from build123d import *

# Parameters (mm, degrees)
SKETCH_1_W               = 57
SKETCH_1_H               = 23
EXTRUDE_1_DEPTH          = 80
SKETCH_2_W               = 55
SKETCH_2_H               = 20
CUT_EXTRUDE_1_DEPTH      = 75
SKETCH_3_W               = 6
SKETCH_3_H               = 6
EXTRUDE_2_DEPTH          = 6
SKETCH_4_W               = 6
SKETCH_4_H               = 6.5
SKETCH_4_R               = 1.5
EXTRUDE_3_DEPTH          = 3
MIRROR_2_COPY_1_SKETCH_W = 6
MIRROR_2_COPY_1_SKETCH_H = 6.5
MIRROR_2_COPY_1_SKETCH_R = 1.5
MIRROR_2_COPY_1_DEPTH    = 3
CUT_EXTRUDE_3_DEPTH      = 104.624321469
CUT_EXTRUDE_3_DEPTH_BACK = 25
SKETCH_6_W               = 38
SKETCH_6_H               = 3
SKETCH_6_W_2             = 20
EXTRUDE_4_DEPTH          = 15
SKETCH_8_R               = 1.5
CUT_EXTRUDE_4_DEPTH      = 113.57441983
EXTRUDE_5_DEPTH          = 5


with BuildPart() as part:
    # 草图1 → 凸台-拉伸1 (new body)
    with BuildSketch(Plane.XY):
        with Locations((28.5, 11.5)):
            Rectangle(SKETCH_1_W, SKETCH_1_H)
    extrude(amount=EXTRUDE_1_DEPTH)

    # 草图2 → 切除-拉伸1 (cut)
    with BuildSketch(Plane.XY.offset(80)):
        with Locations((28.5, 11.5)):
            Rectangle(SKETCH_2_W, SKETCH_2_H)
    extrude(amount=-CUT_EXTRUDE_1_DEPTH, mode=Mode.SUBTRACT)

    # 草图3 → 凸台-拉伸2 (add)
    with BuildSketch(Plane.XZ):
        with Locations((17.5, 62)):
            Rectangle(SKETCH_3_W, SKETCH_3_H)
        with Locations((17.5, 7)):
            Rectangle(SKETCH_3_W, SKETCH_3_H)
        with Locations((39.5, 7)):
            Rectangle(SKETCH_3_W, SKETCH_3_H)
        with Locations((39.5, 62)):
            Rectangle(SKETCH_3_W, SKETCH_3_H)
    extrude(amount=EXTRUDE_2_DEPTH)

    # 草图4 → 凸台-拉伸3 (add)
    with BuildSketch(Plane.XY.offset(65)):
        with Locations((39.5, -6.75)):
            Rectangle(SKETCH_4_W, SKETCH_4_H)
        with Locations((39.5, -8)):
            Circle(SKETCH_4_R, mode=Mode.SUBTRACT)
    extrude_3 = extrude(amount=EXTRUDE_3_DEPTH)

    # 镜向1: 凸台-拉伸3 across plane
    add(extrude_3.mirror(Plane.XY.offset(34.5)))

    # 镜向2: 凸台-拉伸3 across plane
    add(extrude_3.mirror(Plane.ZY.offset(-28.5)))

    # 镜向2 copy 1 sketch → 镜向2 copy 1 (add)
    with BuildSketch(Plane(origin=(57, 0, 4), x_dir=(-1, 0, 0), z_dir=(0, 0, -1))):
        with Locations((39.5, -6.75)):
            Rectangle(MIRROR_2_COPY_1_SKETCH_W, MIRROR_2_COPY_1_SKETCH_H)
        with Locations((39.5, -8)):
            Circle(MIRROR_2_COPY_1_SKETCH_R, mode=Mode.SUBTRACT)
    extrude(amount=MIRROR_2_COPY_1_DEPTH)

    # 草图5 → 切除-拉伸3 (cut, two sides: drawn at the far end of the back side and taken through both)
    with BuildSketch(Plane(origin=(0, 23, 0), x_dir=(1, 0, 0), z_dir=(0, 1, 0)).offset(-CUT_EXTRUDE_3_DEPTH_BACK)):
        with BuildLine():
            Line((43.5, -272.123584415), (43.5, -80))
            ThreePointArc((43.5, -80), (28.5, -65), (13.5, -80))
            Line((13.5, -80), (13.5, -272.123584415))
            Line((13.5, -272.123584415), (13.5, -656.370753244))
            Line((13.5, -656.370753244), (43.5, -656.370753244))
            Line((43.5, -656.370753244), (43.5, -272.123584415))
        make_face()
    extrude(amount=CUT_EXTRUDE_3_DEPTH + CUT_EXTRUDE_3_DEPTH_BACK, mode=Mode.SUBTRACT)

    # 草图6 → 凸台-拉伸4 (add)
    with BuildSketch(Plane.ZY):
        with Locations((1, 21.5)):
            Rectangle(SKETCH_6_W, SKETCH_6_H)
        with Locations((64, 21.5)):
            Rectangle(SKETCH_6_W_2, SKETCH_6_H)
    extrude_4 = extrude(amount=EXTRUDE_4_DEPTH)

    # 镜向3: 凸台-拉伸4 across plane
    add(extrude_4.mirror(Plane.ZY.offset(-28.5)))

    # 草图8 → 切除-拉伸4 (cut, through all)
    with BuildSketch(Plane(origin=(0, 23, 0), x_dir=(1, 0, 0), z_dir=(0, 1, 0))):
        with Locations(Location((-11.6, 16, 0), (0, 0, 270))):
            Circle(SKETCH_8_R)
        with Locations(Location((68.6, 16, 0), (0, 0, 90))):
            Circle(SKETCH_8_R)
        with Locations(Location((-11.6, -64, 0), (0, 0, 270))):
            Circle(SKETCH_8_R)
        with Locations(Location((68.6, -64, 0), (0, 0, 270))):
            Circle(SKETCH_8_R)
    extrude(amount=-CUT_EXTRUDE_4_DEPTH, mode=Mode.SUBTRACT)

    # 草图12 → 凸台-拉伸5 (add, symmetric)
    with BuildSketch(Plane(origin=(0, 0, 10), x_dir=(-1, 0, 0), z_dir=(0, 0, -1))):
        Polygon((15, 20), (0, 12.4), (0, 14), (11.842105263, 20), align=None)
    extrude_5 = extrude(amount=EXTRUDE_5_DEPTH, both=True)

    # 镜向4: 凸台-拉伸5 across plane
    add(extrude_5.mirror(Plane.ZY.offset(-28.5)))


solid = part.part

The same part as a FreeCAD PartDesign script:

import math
import FreeCAD as App
import Part
import Sketcher

doc = App.newDocument("Part")
params = doc.addObject("Spreadsheet::Sheet", "Params")
for row, (alias, value) in enumerate([
    ("sketch1_width", "57 mm"),
    ("sketch1_height", "23 mm"),
    ("pad1_length", "80 mm"),
    ("sketch2_width", "55 mm"),
    ("sketch2_height", "20 mm"),
    ("pocket1_length", "75 mm"),
    ("sketch3_width", "6 mm"),
    ("pad2_length", "6 mm"),
    ("sketch4_diameter", "3 mm"),
    ("sketch4_width", "6 mm"),
    ("sketch4_height", "6.5 mm"),
    ("pad3_length", "3 mm"),
    ("sketch5_diameter", "3 mm"),
    ("sketch5_width", "6 mm"),
    ("sketch5_height", "6.5 mm"),
    ("pad4_length", "3 mm"),
    ("sketch6_radius", "15 mm"),
    ("pocket2_length", "104.624321 mm"),
    ("pocket2_length2", "25 mm"),
    ("sketch7_width", "3 mm"),
    ("sketch7_height", "38 mm"),
    ("sketch7_height2", "20 mm"),
    ("pad5_length", "15 mm"),
    ("sketch8_diameter", "3 mm"),
    ("sketch9_height", "1.6 mm"),
    ("pad6_length", "10 mm"),
], start=1):
    params.set(f"A{row}", alias)
    params.set(f"B{row}", "=" + value)
    params.setAlias(f"B{row}", alias)

body = doc.addObject("PartDesign::Body", "Body")

sketch1 = body.newObject("Sketcher::SketchObject", "Sketch")
sketch1.AttachmentSupport = (doc.getObject("XY_Plane"), [""])
sketch1.MapMode = "FlatFace"
sketch1.addGeometry([
    Part.LineSegment(App.Vector(0, 23, 0), App.Vector(0, 0, 0)),
    Part.LineSegment(App.Vector(0, 0, 0), App.Vector(57, 0, 0)),
    Part.LineSegment(App.Vector(57, 0, 0), App.Vector(57, 23, 0)),
    Part.LineSegment(App.Vector(57, 23, 0), App.Vector(0, 23, 0)),
], False)
sketch1.addConstraint([
    Sketcher.Constraint("Coincident", 0, 2, 1, 1),
    Sketcher.Constraint("Coincident", 1, 2, 2, 1),
    Sketcher.Constraint("Coincident", 2, 2, 3, 1),
    Sketcher.Constraint("Coincident", 3, 2, 0, 1),
    Sketcher.Constraint("Vertical", 0),
    Sketcher.Constraint("Horizontal", 1),
    Sketcher.Constraint("Vertical", 2),
    Sketcher.Constraint("Horizontal", 3),
    Sketcher.Constraint("Coincident", 0, 2, -1, 1),
    Sketcher.Constraint("DistanceX", 1, 1, 1, 2, 57.0),
    Sketcher.Constraint("DistanceY", 0, 2, 0, 1, 23.0),
])
sketch1.setExpression("Constraints[9]", "Params.sketch1_width")
sketch1.setExpression("Constraints[10]", "Params.sketch1_height")
pad1 = body.newObject("PartDesign::Pad", "Pad")
pad1.Profile = sketch1
pad1.setExpression("Length", "Params.pad1_length")

sketch2 = body.newObject("Sketcher::SketchObject", "Sketch001")
sketch2.AttachmentSupport = (doc.getObject("XY_Plane"), [""])
sketch2.MapMode = "FlatFace"
sketch2.AttachmentOffset = App.Placement(App.Vector(0, 0, 80), App.Rotation())
sketch2.addGeometry([
    Part.LineSegment(App.Vector(1, 22, 0), App.Vector(1, 2, 0)),
    Part.LineSegment(App.Vector(1, 2, 0), App.Vector(56, 2, 0)),
    Part.LineSegment(App.Vector(56, 2, 0), App.Vector(56, 22, 0)),
    Part.LineSegment(App.Vector(56, 22, 0), App.Vector(1, 22, 0)),
], False)
sketch2.addConstraint([
    Sketcher.Constraint("Coincident", 0, 2, 1, 1),
    Sketcher.Constraint("Coincident", 1, 2, 2, 1),
    Sketcher.Constraint("Coincident", 2, 2, 3, 1),
    Sketcher.Constraint("Coincident", 3, 2, 0, 1),
    Sketcher.Constraint("Vertical", 0),
    Sketcher.Constraint("Horizontal", 1),
    Sketcher.Constraint("Vertical", 2),
    Sketcher.Constraint("Horizontal", 3),
    Sketcher.Constraint("DistanceX", 1, 1, 1, 2, 55.0),
    Sketcher.Constraint("DistanceY", 0, 2, 0, 1, 20.0),
    Sketcher.Constraint("DistanceX", -1, 1, 0, 2, 1.0),
    Sketcher.Constraint("DistanceY", -1, 1, 0, 2, 1.5),
])
sketch2.setExpression("Constraints[8]", "Params.sketch2_width")
sketch2.setExpression("Constraints[9]", "Params.sketch2_height")
pocket1 = body.newObject("PartDesign::Pocket", "Pocket")
pocket1.Profile = sketch2
pocket1.setExpression("Length", "Params.pocket1_length")

sketch3 = body.newObject("Sketcher::SketchObject", "Sketch002")
sketch3.AttachmentSupport = (doc.getObject("XZ_Plane"), [""])
sketch3.MapMode = "FlatFace"
sketch3.addGeometry([
    Part.LineSegment(App.Vector(14, 65, 0), App.Vector(14, 59, 0)),
    Part.LineSegment(App.Vector(14, 59, 0), App.Vector(20, 59, 0)),
    Part.LineSegment(App.Vector(20, 59, 0), App.Vector(20, 65, 0)),
    Part.LineSegment(App.Vector(20, 65, 0), App.Vector(14, 65, 0)),
    Part.LineSegment(App.Vector(14, 10, 0), App.Vector(14, 4, 0)),
    Part.LineSegment(App.Vector(14, 4, 0), App.Vector(20, 4, 0)),
    Part.LineSegment(App.Vector(20, 4, 0), App.Vector(20, 10, 0)),
    Part.LineSegment(App.Vector(20, 10, 0), App.Vector(14, 10, 0)),
    Part.LineSegment(App.Vector(36, 10, 0), App.Vector(36, 4, 0)),
    Part.LineSegment(App.Vector(36, 4, 0), App.Vector(42, 4, 0)),
    Part.LineSegment(App.Vector(42, 4, 0), App.Vector(42, 10, 0)),
    Part.LineSegment(App.Vector(42, 10, 0), App.Vector(36, 10, 0)),
    Part.LineSegment(App.Vector(36, 65, 0), App.Vector(36, 59, 0)),
    Part.LineSegment(App.Vector(36, 59, 0), App.Vector(42, 59, 0)),
    Part.LineSegment(App.Vector(42, 59, 0), App.Vector(42, 65, 0)),
    Part.LineSegment(App.Vector(42, 65, 0), App.Vector(36, 65, 0)),
], False)
sketch3.addConstraint([
    Sketcher.Constraint("Coincident", 0, 2, 1, 1),
    Sketcher.Constraint("Coincident", 1, 2, 2, 1),
    Sketcher.Constraint("Coincident", 2, 2, 3, 1),
    Sketcher.Constraint("Coincident", 3, 2, 0, 1),
    Sketcher.Constraint("Coincident", 4, 2, 5, 1),
    Sketcher.Constraint("Coincident", 5, 2, 6, 1),
    Sketcher.Constraint("Coincident", 6, 2, 7, 1),
    Sketcher.Constraint("Coincident", 7, 2, 4, 1),
    Sketcher.Constraint("Coincident", 8, 2, 9, 1),
    Sketcher.Constraint("Coincident", 9, 2, 10, 1),
    Sketcher.Constraint("Coincident", 10, 2, 11, 1),
    Sketcher.Constraint("Coincident", 11, 2, 8, 1),
    Sketcher.Constraint("Coincident", 12, 2, 13, 1),
    Sketcher.Constraint("Coincident", 13, 2, 14, 1),
    Sketcher.Constraint("Coincident", 14, 2, 15, 1),
    Sketcher.Constraint("Coincident", 15, 2, 12, 1),
    Sketcher.Constraint("Vertical", 0),
    Sketcher.Constraint("Horizontal", 1),
    Sketcher.Constraint("Vertical", 2),
    Sketcher.Constraint("Horizontal", 3),
    Sketcher.Constraint("Vertical", 4),
    Sketcher.Constraint("Horizontal", 5),
    Sketcher.Constraint("Vertical", 6),
    Sketcher.Constraint("Horizontal", 7),
    Sketcher.Constraint("Vertical", 8),
    Sketcher.Constraint("Horizontal", 9),
    Sketcher.Constraint("Vertical", 10),
    Sketcher.Constraint("Horizontal", 11),
    Sketcher.Constraint("Vertical", 12),
    Sketcher.Constraint("Horizontal", 13),
    Sketcher.Constraint("Vertical", 14),
    Sketcher.Constraint("Horizontal", 15),
    Sketcher.Constraint("Horizontal", 5, 2, 8, 2),
    Sketcher.Constraint("Horizontal", 7, 2, 10, 2),
    Sketcher.Constraint("Horizontal", 1, 2, 12, 2),
    Sketcher.Constraint("Horizontal", 3, 2, 14, 2),
    Sketcher.Constraint("Vertical", 3, 2, 4, 2),
    Sketcher.Constraint("Vertical", 2, 2, 5, 2),
    Sketcher.Constraint("Vertical", 11, 2, 12, 2),
    Sketcher.Constraint("Vertical", 10, 2, 13, 2),
    Sketcher.Constraint("Equal", 7, 9),
    Sketcher.Constraint("Equal", 15, 0),
    Sketcher.Constraint("Equal", 2, 4),
    Sketcher.Constraint("DistanceX", 1, 1, 1, 2, 6.0),
    Sketcher.Constraint("DistanceY", -1, 1, 0, 2, 59.0),
    Sketcher.Constraint("DistanceY", -1, 1, 4, 2, 4.0),
    Sketcher.Constraint("DistanceX", 5, 2, 8, 2, 16.0),
    Sketcher.Constraint("DistanceX", -1, 1, 0, 2, 14.5),
])
sketch3.setExpression("Constraints[43]", "Params.sketch3_width")
pad2 = body.newObject("PartDesign::Pad", "Pad001")
pad2.Profile = sketch3
pad2.setExpression("Length", "Params.pad2_length")

sketch4 = body.newObject("Sketcher::SketchObject", "Sketch003")
sketch4.AttachmentSupport = (doc.getObject("XY_Plane"), [""])
sketch4.MapMode = "FlatFace"
sketch4.AttachmentOffset = App.Placement(App.Vector(0, 0, 65), App.Rotation())
sketch4.addGeometry([
    Part.LineSegment(App.Vector(36.5, -3.5, 0), App.Vector(36.5, -10, 0)),
    Part.LineSegment(App.Vector(36.5, -10, 0), App.Vector(42.5, -10, 0)),
    Part.LineSegment(App.Vector(42.5, -10, 0), App.Vector(42.5, -3.5, 0)),
    Part.LineSegment(App.Vector(42.5, -3.5, 0), App.Vector(36.5, -3.5, 0)),
    Part.Circle(App.Vector(39.5, -8, 0), App.Vector(0, 0, 1), 1.5),
], False)
sketch4.addConstraint([
    Sketcher.Constraint("Coincident", 0, 2, 1, 1),
    Sketcher.Constraint("Coincident", 1, 2, 2, 1),
    Sketcher.Constraint("Coincident", 2, 2, 3, 1),
    Sketcher.Constraint("Coincident", 3, 2, 0, 1),
    Sketcher.Constraint("Vertical", 0),
    Sketcher.Constraint("Horizontal", 1),
    Sketcher.Constraint("Vertical", 2),
    Sketcher.Constraint("Horizontal", 3),
    Sketcher.Constraint("Diameter", 4, 3.0),
    Sketcher.Constraint("DistanceX", 1, 1, 1, 2, 6.0),
    Sketcher.Constraint("DistanceY", 0, 2, 0, 1, 6.5),
    Sketcher.Constraint("DistanceY", 4, 3, -1, 1, 8.0),
    Sketcher.Constraint("DistanceY", 0, 2, -1, 1, 10.0),
    Sketcher.Constraint("DistanceX", 0, 2, 4, 3, 3.0),
    Sketcher.Constraint("DistanceX", -1, 1, 4, 3, 39.5),
])
sketch4.setExpression("Constraints[8]", "Params.sketch4_diameter")
sketch4.setExpression("Constraints[9]", "Params.sketch4_width")
sketch4.setExpression("Constraints[10]", "Params.sketch4_height")
pad3 = body.newObject("PartDesign::Pad", "Pad002")
pad3.Profile = sketch4
pad3.setExpression("Length", "Params.pad3_length")
doc.recompute()

datumplane = body.newObject("PartDesign::Plane", "DatumPlane")
datumplane.AttachmentSupport = (doc.getObject("XY_Plane"), [""])
datumplane.MapMode = "FlatFace"
datumplane.AttachmentOffset = App.Placement(App.Vector(0, 0, 34.5), App.Rotation())
mirrored = body.newObject("PartDesign::Mirrored", "Mirrored")
mirrored.Originals = [pad3]
mirrored.MirrorPlane = (datumplane, [""])
body.Tip = mirrored
doc.recompute()

datumplane2 = body.newObject("PartDesign::Plane", "DatumPlane001")
datumplane2.AttachmentSupport = (doc.getObject("YZ_Plane"), [""])
datumplane2.MapMode = "FlatFace"
datumplane2.AttachmentOffset = App.Placement(App.Vector(0, 0, 28.5), App.Rotation())
mirrored2 = body.newObject("PartDesign::Mirrored", "Mirrored001")
mirrored2.Originals = [pad3]
mirrored2.MirrorPlane = (datumplane2, [""])
body.Tip = mirrored2

sketch5 = body.newObject("Sketcher::SketchObject", "Sketch004")
sketch5.AttachmentSupport = (doc.getObject("XY_Plane"), [""])
sketch5.MapMode = "FlatFace"
sketch5.AttachmentOffset = App.Placement(App.Vector(0, 0, 4), App.Rotation())
sketch5.addGeometry([
    Part.LineSegment(App.Vector(20.5, -3.5, 0), App.Vector(20.5, -10, 0)),
    Part.LineSegment(App.Vector(20.5, -10, 0), App.Vector(14.5, -10, 0)),
    Part.LineSegment(App.Vector(14.5, -10, 0), App.Vector(14.5, -3.5, 0)),
    Part.LineSegment(App.Vector(14.5, -3.5, 0), App.Vector(20.5, -3.5, 0)),
    Part.Circle(App.Vector(17.5, -8, 0), App.Vector(0, 0, 1), 1.5),
], False)
sketch5.addConstraint([
    Sketcher.Constraint("Coincident", 0, 2, 1, 1),
    Sketcher.Constraint("Coincident", 1, 2, 2, 1),
    Sketcher.Constraint("Coincident", 2, 2, 3, 1),
    Sketcher.Constraint("Coincident", 3, 2, 0, 1),
    Sketcher.Constraint("Vertical", 0),
    Sketcher.Constraint("Horizontal", 1),
    Sketcher.Constraint("Vertical", 2),
    Sketcher.Constraint("Horizontal", 3),
    Sketcher.Constraint("Diameter", 4, 3.0),
    Sketcher.Constraint("DistanceX", 1, 2, 1, 1, 6.0),
    Sketcher.Constraint("DistanceY", 0, 2, 0, 1, 6.5),
    Sketcher.Constraint("DistanceY", 4, 3, -1, 1, 8.0),
    Sketcher.Constraint("DistanceY", 0, 2, -1, 1, 10.0),
    Sketcher.Constraint("DistanceX", 4, 3, 0, 2, 3.0),
    Sketcher.Constraint("DistanceX", -1, 1, 4, 3, 17.5),
])
sketch5.setExpression("Constraints[8]", "Params.sketch5_diameter")
sketch5.setExpression("Constraints[9]", "Params.sketch5_width")
sketch5.setExpression("Constraints[10]", "Params.sketch5_height")
pad4 = body.newObject("PartDesign::Pad", "Pad003")
pad4.Profile = sketch5
pad4.setExpression("Length", "Params.pad4_length")
pad4.Reversed = True

sketch6 = body.newObject("Sketcher::SketchObject", "Sketch005")
sketch6.AttachmentSupport = (doc.getObject("XZ_Plane"), [""])
sketch6.MapMode = "FlatFace"
sketch6.AttachmentOffset = App.Placement(App.Vector(0, 0, -23), App.Rotation())
sketch6.addGeometry([
    Part.ArcOfCircle(Part.Circle(App.Vector(28, 80, 0), App.Vector(0, 0, 1), 15), math.radians(180), math.radians(360)),
    Part.LineSegment(App.Vector(14, 80, 0), App.Vector(14, 656, 0)),
    Part.LineSegment(App.Vector(14, 656, 0), App.Vector(44, 656, 0)),
    Part.LineSegment(App.Vector(44, 656, 0), App.Vector(44, 80, 0)),
], False)
sketch6.addConstraint([
    Sketcher.Constraint("Tangent", 0, 1, 1, 1),
    Sketcher.Constraint("Coincident", 1, 2, 2, 1),
    Sketcher.Constraint("Coincident", 2, 2, 3, 1),
    Sketcher.Constraint("Tangent", 3, 2, 0, 2),
    Sketcher.Constraint("Vertical", 1),
    Sketcher.Constraint("Horizontal", 2),
    Sketcher.Constraint("Vertical", 3),
    Sketcher.Constraint("Radius", 0, 15.0),
    Sketcher.Constraint("DistanceY", -1, 1, 0, 3, 80.0),
    Sketcher.Constraint("DistanceX", -1, 1, 0, 3, 28.5),
    Sketcher.Constraint("DistanceY", 1, 1, 1, 2, 576.370753),
])
sketch6.setExpression("Constraints[7]", "Params.sketch6_radius")
pocket2 = body.newObject("PartDesign::Pocket", "Pocket001")
pocket2.Profile = sketch6
pocket2.Type = "TwoLengths"
pocket2.setExpression("Length", "Params.pocket2_length")
pocket2.setExpression("Length2", "Params.pocket2_length2")

sketch7 = body.newObject("Sketcher::SketchObject", "Sketch006")
sketch7.AttachmentSupport = (doc.getObject("YZ_Plane"), [""])
sketch7.MapMode = "FlatFace"
sketch7.addGeometry([
    Part.LineSegment(App.Vector(23, -18, 0), App.Vector(20, -18, 0)),
    Part.LineSegment(App.Vector(20, -18, 0), App.Vector(20, 20, 0)),
    Part.LineSegment(App.Vector(20, 20, 0), App.Vector(23, 20, 0)),
    Part.LineSegment(App.Vector(23, 20, 0), App.Vector(23, -18, 0)),
    Part.LineSegment(App.Vector(23, 54, 0), App.Vector(20, 54, 0)),
    Part.LineSegment(App.Vector(20, 54, 0), App.Vector(20, 74, 0)),
    Part.LineSegment(App.Vector(20, 74, 0), App.Vector(23, 74, 0)),
    Part.LineSegment(App.Vector(23, 74, 0), App.Vector(23, 54, 0)),
], False)
sketch7.addConstraint([
    Sketcher.Constraint("Coincident", 0, 2, 1, 1),
    Sketcher.Constraint("Coincident", 1, 2, 2, 1),
    Sketcher.Constraint("Coincident", 2, 2, 3, 1),
    Sketcher.Constraint("Coincident", 3, 2, 0, 1),
    Sketcher.Constraint("Coincident", 4, 2, 5, 1),
    Sketcher.Constraint("Coincident", 5, 2, 6, 1),
    Sketcher.Constraint("Coincident", 6, 2, 7, 1),
    Sketcher.Constraint("Coincident", 7, 2, 4, 1),
    Sketcher.Constraint("Horizontal", 0),
    Sketcher.Constraint("Vertical", 1),
    Sketcher.Constraint("Horizontal", 2),
    Sketcher.Constraint("Vertical", 3),
    Sketcher.Constraint("Horizontal", 4),
    Sketcher.Constraint("Vertical", 5),
    Sketcher.Constraint("Horizontal", 6),
    Sketcher.Constraint("Vertical", 7),
    Sketcher.Constraint("Vertical", 1, 2, 4, 2),
    Sketcher.Constraint("Vertical", 3, 2, 6, 2),
    Sketcher.Constraint("DistanceX", 0, 2, 0, 1, 3.0),
    Sketcher.Constraint("DistanceY", 1, 1, 1, 2, 38.0),
    Sketcher.Constraint("DistanceY", 5, 1, 5, 2, 20.0),
    Sketcher.Constraint("DistanceX", -1, 1, 0, 2, 20.0),
    Sketcher.Constraint("DistanceY", 0, 2, -1, 1, 18.0),
    Sketcher.Constraint("DistanceY", -1, 1, 4, 2, 54.0),
])
sketch7.setExpression("Constraints[18]", "Params.sketch7_width")
sketch7.setExpression("Constraints[19]", "Params.sketch7_height")
sketch7.setExpression("Constraints[20]", "Params.sketch7_height2")
pad5 = body.newObject("PartDesign::Pad", "Pad004")
pad5.Profile = sketch7
pad5.setExpression("Length", "Params.pad5_length")
pad5.Reversed = True
doc.recompute()

datumplane3 = body.newObject("PartDesign::Plane", "DatumPlane002")
datumplane3.AttachmentSupport = (doc.getObject("YZ_Plane"), [""])
datumplane3.MapMode = "FlatFace"
datumplane3.AttachmentOffset = App.Placement(App.Vector(0, 0, 28.5), App.Rotation())
mirrored3 = body.newObject("PartDesign::Mirrored", "Mirrored002")
mirrored3.Originals = [pad5]
mirrored3.MirrorPlane = (datumplane3, [""])
body.Tip = mirrored3

sketch8 = body.newObject("Sketcher::SketchObject", "Sketch007")
sketch8.AttachmentSupport = (doc.getObject("XZ_Plane"), [""])
sketch8.MapMode = "FlatFace"
sketch8.AttachmentOffset = App.Placement(App.Vector(0, 0, -23), App.Rotation())
sketch8.addGeometry([
    Part.Circle(App.Vector(-11.6, -16, 0), App.Vector(0, 0, 1), 1.5),
    Part.Circle(App.Vector(68.6, -16, 0), App.Vector(0, 0, 1), 1.5),
    Part.Circle(App.Vector(-11.6, 64, 0), App.Vector(0, 0, 1), 1.5),
    Part.Circle(App.Vector(68.6, 64, 0), App.Vector(0, 0, 1), 1.5),
], False)
sketch8.addConstraint([
    Sketcher.Constraint("Equal", 0, 1),
    Sketcher.Constraint("Equal", 1, 2),
    Sketcher.Constraint("Equal", 2, 3),
    Sketcher.Constraint("Horizontal", 0, 3, 1, 3),
    Sketcher.Constraint("Horizontal", 2, 3, 3, 3),
    Sketcher.Constraint("Vertical", 0, 3, 2, 3),
    Sketcher.Constraint("Vertical", 1, 3, 3, 3),
    Sketcher.Constraint("Diameter", 0, 3.0),
    Sketcher.Constraint("DistanceY", 0, 3, -1, 1, 16.0),
    Sketcher.Constraint("DistanceY", -1, 1, 2, 3, 64.0),
    Sketcher.Constraint("DistanceX", 0, 3, -1, 1, 11.6),
    Sketcher.Constraint("DistanceX", -1, 1, 1, 3, 68.6),
])
sketch8.setExpression("Constraints[7]", "Params.sketch8_diameter")
pocket3 = body.newObject("PartDesign::Pocket", "Pocket002")
pocket3.Profile = sketch8
pocket3.Type = "ThroughAll"
pocket3.Reversed = True

sketch9 = body.newObject("Sketcher::SketchObject", "Sketch008")
sketch9.AttachmentSupport = (doc.getObject("XY_Plane"), [""])
sketch9.MapMode = "FlatFace"
sketch9.AttachmentOffset = App.Placement(App.Vector(0, 0, 10), App.Rotation())
sketch9.addGeometry([
    Part.LineSegment(App.Vector(0, 12.4, 0), App.Vector(-15, 20, 0)),
    Part.LineSegment(App.Vector(-15, 20, 0), App.Vector(-11.8, 20, 0)),
    Part.LineSegment(App.Vector(-11.8, 20, 0), App.Vector(0, 14, 0)),
    Part.LineSegment(App.Vector(0, 14, 0), App.Vector(0, 12.4, 0)),
], False)
sketch9.addConstraint([
    Sketcher.Constraint("Coincident", 0, 2, 1, 1),
    Sketcher.Constraint("Coincident", 1, 2, 2, 1),
    Sketcher.Constraint("Coincident", 2, 2, 3, 1),
    Sketcher.Constraint("Coincident", 3, 2, 0, 1),
    Sketcher.Constraint("Horizontal", 1),
    Sketcher.Constraint("Vertical", 3),
    Sketcher.Constraint("PointOnObject", 2, 2, -2),
    Sketcher.Constraint("Parallel", 0, 2),
    Sketcher.Constraint("DistanceY", 3, 2, 3, 1, 1.6),
    Sketcher.Constraint("DistanceX", 0, 2, -1, 1, 15.0),
    Sketcher.Constraint("DistanceY", -1, 1, 0, 2, 20.0),
    Sketcher.Constraint("DistanceY", -1, 1, 2, 2, 14.0),
])
sketch9.setExpression("Constraints[8]", "Params.sketch9_height")
pad6 = body.newObject("PartDesign::Pad", "Pad005")
pad6.Profile = sketch9
pad6.setExpression("Length", "Params.pad6_length")
pad6.Midplane = True
doc.recompute()

datumplane4 = body.newObject("PartDesign::Plane", "DatumPlane003")
datumplane4.AttachmentSupport = (doc.getObject("YZ_Plane"), [""])
datumplane4.MapMode = "FlatFace"
datumplane4.AttachmentOffset = App.Placement(App.Vector(0, 0, 28.5), App.Rotation())
mirrored4 = body.newObject("PartDesign::Mirrored", "Mirrored003")
mirrored4.Originals = [pad6]
mirrored4.MirrorPlane = (datumplane4, [""])
body.Tip = mirrored4

doc.recompute()
